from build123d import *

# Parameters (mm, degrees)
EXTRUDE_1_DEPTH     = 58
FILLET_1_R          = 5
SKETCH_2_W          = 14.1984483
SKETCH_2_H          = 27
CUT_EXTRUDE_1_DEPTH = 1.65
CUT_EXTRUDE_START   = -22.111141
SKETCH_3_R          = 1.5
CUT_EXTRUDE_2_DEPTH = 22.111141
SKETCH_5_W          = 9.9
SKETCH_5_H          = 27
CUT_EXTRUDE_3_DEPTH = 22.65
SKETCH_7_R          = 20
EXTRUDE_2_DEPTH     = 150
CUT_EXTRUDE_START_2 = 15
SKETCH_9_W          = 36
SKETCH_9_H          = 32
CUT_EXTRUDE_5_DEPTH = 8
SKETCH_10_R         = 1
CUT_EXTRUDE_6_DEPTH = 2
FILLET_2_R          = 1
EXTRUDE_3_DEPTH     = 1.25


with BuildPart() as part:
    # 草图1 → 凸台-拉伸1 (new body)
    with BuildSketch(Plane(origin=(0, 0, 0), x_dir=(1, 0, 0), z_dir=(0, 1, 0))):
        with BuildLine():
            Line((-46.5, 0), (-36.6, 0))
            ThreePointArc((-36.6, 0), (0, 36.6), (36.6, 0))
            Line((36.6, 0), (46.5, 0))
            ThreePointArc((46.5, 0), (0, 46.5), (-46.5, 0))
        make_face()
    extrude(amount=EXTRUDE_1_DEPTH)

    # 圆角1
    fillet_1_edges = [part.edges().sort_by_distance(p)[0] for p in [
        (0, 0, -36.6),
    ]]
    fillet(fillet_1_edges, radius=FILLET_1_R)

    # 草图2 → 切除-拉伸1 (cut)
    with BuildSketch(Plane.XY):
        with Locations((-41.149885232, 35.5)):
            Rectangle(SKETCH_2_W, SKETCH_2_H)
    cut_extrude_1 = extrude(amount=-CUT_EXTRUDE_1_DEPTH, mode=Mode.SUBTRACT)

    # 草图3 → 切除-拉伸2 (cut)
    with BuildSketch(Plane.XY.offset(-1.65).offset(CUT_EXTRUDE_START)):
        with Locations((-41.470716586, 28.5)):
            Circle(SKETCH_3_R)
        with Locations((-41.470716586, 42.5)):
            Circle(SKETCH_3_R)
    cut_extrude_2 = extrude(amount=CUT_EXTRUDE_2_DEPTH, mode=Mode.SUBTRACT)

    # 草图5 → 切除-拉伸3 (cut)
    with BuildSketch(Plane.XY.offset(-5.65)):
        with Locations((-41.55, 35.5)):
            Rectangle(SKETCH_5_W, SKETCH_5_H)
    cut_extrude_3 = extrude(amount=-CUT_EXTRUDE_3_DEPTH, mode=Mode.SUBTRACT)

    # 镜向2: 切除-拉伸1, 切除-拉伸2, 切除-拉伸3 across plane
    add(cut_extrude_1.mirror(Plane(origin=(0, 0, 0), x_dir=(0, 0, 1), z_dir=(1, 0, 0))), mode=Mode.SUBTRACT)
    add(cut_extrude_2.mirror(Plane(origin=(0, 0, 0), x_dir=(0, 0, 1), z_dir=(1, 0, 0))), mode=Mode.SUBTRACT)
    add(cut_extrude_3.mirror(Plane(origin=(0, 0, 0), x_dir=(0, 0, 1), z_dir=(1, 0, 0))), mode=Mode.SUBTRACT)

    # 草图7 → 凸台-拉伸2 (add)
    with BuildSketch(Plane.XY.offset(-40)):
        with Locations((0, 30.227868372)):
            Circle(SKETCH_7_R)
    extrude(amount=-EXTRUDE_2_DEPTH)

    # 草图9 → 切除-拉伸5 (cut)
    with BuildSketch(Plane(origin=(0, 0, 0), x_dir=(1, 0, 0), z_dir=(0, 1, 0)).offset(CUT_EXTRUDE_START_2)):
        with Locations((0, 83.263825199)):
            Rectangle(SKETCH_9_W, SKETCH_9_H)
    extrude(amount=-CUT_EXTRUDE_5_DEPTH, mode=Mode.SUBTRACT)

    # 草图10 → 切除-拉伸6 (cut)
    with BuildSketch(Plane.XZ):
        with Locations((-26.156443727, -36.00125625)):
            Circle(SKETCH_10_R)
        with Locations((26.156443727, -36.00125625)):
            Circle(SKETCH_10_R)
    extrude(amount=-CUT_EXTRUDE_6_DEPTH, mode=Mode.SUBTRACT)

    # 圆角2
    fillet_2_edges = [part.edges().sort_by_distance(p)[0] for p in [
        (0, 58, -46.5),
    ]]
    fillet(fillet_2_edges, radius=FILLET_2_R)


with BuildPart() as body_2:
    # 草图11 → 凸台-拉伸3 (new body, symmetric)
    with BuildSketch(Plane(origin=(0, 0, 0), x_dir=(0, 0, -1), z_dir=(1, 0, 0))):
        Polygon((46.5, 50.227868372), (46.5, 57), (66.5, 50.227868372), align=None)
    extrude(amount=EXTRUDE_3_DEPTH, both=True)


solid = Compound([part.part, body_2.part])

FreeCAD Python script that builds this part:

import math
import FreeCAD as App
import Part
import Sketcher
Q = App.Units.Quantity


def edges_at(feature, points):
    """Names of the edges that pass closest to the given points."""
    edges = feature.Shape.Edges
    near = lambda p: min(range(len(edges)), key=lambda i: edges[i].distToShape(Part.Vertex(*p))[0])
    return sorted({f"Edge{near(p) + 1}" for p in points})

doc = App.newDocument("Part")
params = doc.addObject("Spreadsheet::Sheet", "Params")
for row, (alias, value) in enumerate([
    ("sketch1_radius", "36.6 mm"),
    ("sketch1_radius2", "46.5 mm"),
    ("pad1_length", "58 mm"),
    ("fillet_radius", "5 mm"),
    ("sketch2_height", "27 mm"),
    ("pocket1_length", "1.65 mm"),
    ("sketch3_diameter", "3 mm"),
    ("pocket2_length", "22.111141 mm"),
    ("sketch4_height", "27 mm"),
    ("sketch4_width", "9.9 mm"),
    ("pocket3_length", "22.65 mm"),
    ("sketch5_diameter", "40 mm"),
    ("pad2_length", "150 mm"),
    ("sketch6_width", "36 mm"),
    ("sketch6_height", "32 mm"),
    ("pocket4_length", "8 mm"),
    ("sketch7_diameter", "2 mm"),
    ("pocket5_length", "2 mm"),
    ("fillet2_radius", "1 mm"),
    ("sketch8_height", "20 mm"),
    ("pad3_length", "2.5 mm"),
], start=1):
    params.set(f"A{row}", alias)
    params.set(f"B{row}", "=" + value)
    params.setAlias(f"B{row}", alias)

body = doc.addObject("PartDesign::Body", "Body")

sketch1 = body.newObject("Sketcher::SketchObject", "Sketch")
sketch1.AttachmentSupport = (doc.getObject("XZ_Plane"), [""])
sketch1.MapMode = "FlatFace"
sketch1.addGeometry([
    Part.LineSegment(App.Vector(-46, 0, 0), App.Vector(-37, 0, 0)),
    Part.ArcOfCircle(Part.Circle(App.Vector(0, 0, 0), App.Vector(0, 0, 1), 37), math.radians(180), math.radians(360)),
    Part.LineSegment(App.Vector(37, 0, 0), App.Vector(46, 0, 0)),
    Part.ArcOfCircle(Part.Circle(App.Vector(0, 0, 0), App.Vector(0, 0, 1), 46), math.radians(180), math.radians(360)),
], False)
sketch1.addConstraint([
    Sketcher.Constraint("Coincident", 0, 2, 1, 1),
    Sketcher.Constraint("Coincident", 1, 2, 2, 1),
    Sketcher.Constraint("Coincident", 2, 2, 3, 2),
    Sketcher.Constraint("Coincident", 3, 1, 0, 1),
    Sketcher.Constraint("Horizontal", 0),
    Sketcher.Constraint("Horizontal", 2),
    Sketcher.Constraint("Coincident", 1, 3, -1, 1),
    Sketcher.Constraint("Coincident", 3, 3, -1, 1),
    Sketcher.Constraint("PointOnObject", 0, 2, -1),
    Sketcher.Constraint("PointOnObject", 1, 2, -1),
    Sketcher.Constraint("Radius", 1, Q("36.6 mm")),
    Sketcher.Constraint("Radius", 3, Q("46.5 mm")),
])
sketch1.setExpression("Constraints[10]", "Params.sketch1_radius")
sketch1.setExpression("Constraints[11]", "Params.sketch1_radius2")
pad1 = body.newObject("PartDesign::Pad", "Pad")
pad1.Profile = sketch1
pad1.setExpression("Length", "Params.pad1_length")
pad1.Reversed = True
doc.recompute()

fillet = body.newObject("PartDesign::Fillet", "Fillet")
fillet.Base = (pad1, edges_at(pad1, [(0, 0, -36.6)]))
fillet.setExpression("Radius", "Params.fillet_radius")

sketch2 = body.newObject("Sketcher::SketchObject", "Sketch001")
sketch2.AttachmentSupport = (doc.getObject("XY_Plane"), [""])
sketch2.MapMode = "FlatFace"
sketch2.addGeometry([
    Part.LineSegment(App.Vector(-48, 49, 0), App.Vector(-48, 22, 0)),
    Part.LineSegment(App.Vector(-48, 22, 0), App.Vector(-34, 22, 0)),
    Part.LineSegment(App.Vector(-34, 22, 0), App.Vector(-34, 49, 0)),
    Part.LineSegment(App.Vector(-34, 49, 0), App.Vector(-48, 49, 0)),
], False)
sketch2.addConstraint([
    Sketcher.Constraint("Coincident", 0, 2, 1, 1),
    Sketcher.Constraint("Coincident", 1, 2, 2, 1),
    Sketcher.Constraint("Coincident", 2, 2, 3, 1),
    Sketcher.Constraint("Coincident", 3, 2, 0, 1),
    Sketcher.Constraint("Vertical", 0),
    Sketcher.Constraint("Horizontal", 1),
    Sketcher.Constraint("Vertical", 2),
    Sketcher.Constraint("Horizontal", 3),
    Sketcher.Constraint("DistanceY", 0, 2, 0, 1, Q("27 mm")),
    Sketcher.Constraint("DistanceY", -1, 1, 0, 2, Q("22 mm")),
    Sketcher.Constraint("DistanceX", 1, 1, 1, 2, Q("14.198448 mm")),
    Sketcher.Constraint("DistanceX", 0, 2, -1, 1, Q("48.249109 mm")),
])
sketch2.setExpression("Constraints[8]", "Params.sketch2_height")
pocket1 = body.newObject("PartDesign::Pocket", "Pocket")
pocket1.Profile = sketch2
pocket1.setExpression("Length", "Params.pocket1_length")

sketch3 = body.newObject("Sketcher::SketchObject", "Sketch002")
sketch3.AttachmentSupport = (doc.getObject("XY_Plane"), [""])
sketch3.MapMode = "FlatFace"
sketch3.AttachmentOffset = App.Placement(App.Vector(0, 0, -23.761141), App.Rotation())
sketch3.addGeometry([
    Part.Circle(App.Vector(-41.5, 28.5, 0), App.Vector(0, 0, 1), 1.5),
    Part.Circle(App.Vector(-41.5, 42.5, 0), App.Vector(0, 0, 1), 1.5),
], False)
sketch3.addConstraint([
    Sketcher.Constraint("Equal", 0, 1),
    Sketcher.Constraint("Vertical", 0, 3, 1, 3),
    Sketcher.Constraint("Diameter", 0, Q("3 mm")),
    Sketcher.Constraint("DistanceY", 0, 3, 1, 3, Q("14 mm")),
    Sketcher.Constraint("DistanceY", -1, 1, 0, 3, Q("28.5 mm")),
    Sketcher.Constraint("DistanceX", 0, 3, -1, 1, Q("41.470717 mm")),
])
sketch3.setExpression("Constraints[2]", "Params.sketch3_diameter")
pocket2 = body.newObject("PartDesign::Pocket", "Pocket001")
pocket2.Profile = sketch3
pocket2.setExpression("Length", "Params.pocket2_length")
pocket2.Reversed = True

sketch4 = body.newObject("Sketcher::SketchObject", "Sketch003")
sketch4.AttachmentSupport = (doc.getObject("XY_Plane"), [""])
sketch4.MapMode = "FlatFace"
sketch4.AttachmentOffset = App.Placement(App.Vector(0, 0, -5.65), App.Rotation())
sketch4.addGeometry([
    Part.LineSegment(App.Vector(-46, 49, 0), App.Vector(-46, 22, 0)),
    Part.LineSegment(App.Vector(-46, 22, 0), App.Vector(-37, 22, 0)),
    Part.LineSegment(App.Vector(-37, 22, 0), App.Vector(-37, 49, 0)),
    Part.LineSegment(App.Vector(-37, 49, 0), App.Vector(-46, 49, 0)),
], False)
sketch4.addConstraint([
    Sketcher.Constraint("Coincident", 0, 2, 1, 1),
    Sketcher.Constraint("Coincident", 1, 2, 2, 1),
    Sketcher.Constraint("Coincident", 2, 2, 3, 1),
    Sketcher.Constraint("Coincident", 3, 2, 0, 1),
    Sketcher.Constraint("Vertical", 0),
    Sketcher.Constraint("Horizontal", 1),
    Sketcher.Constraint("Vertical", 2),
    Sketcher.Constraint("Horizontal", 3),
    Sketcher.Constraint("DistanceY", 0, 2, 0, 1, Q("27 mm")),
    Sketcher.Constraint("DistanceX", 1, 1, 1, 2, Q("9.9 mm")),
    Sketcher.Constraint("DistanceY", -1, 1, 0, 2, Q("22 mm")),
    Sketcher.Constraint("DistanceX", 0, 2, -1, 1, Q("46.5 mm")),
])
sketch4.setExpression("Constraints[8]", "Params.sketch4_height")
sketch4.setExpression("Constraints[9]", "Params.sketch4_width")
pocket3 = body.newObject("PartDesign::Pocket", "Pocket002")
pocket3.Profile = sketch4
pocket3.setExpression("Length", "Params.pocket3_length")
doc.recompute()

mirrored = body.newObject("PartDesign::Mirrored", "Mirrored")
mirrored.Originals = [pocket1, pocket2, pocket3]
mirrored.MirrorPlane = (doc.getObject("YZ_Plane"), [""])
body.Tip = mirrored

sketch5 = body.newObject("Sketcher::SketchObject", "Sketch004")
sketch5.AttachmentSupport = (doc.getObject("XY_Plane"), [""])
sketch5.MapMode = "FlatFace"
sketch5.AttachmentOffset = App.Placement(App.Vector(0, 0, -40), App.Rotation())
sketch5.addGeometry(Part.Circle(App.Vector(0, 30, 0), App.Vector(0, 0, 1), 20), False)
sketch5.addConstraint([
    Sketcher.Constraint("PointOnObject", 0, 3, -2),
    Sketcher.Constraint("Diameter", 0, Q("40 mm")),
    Sketcher.Constraint("DistanceY", -1, 1, 0, 3, Q("30.227868 mm")),
])
sketch5.setExpression("Constraints[1]", "Params.sketch5_diameter")
pad2 = body.newObject("PartDesign::Pad", "Pad001")
pad2.Profile = sketch5
pad2.setExpression("Length", "Params.pad2_length")
pad2.Reversed = True

sketch6 = body.newObject("Sketcher::SketchObject", "Sketch005")
sketch6.AttachmentSupport = (doc.getObject("XZ_Plane"), [""])
sketch6.MapMode = "FlatFace"
sketch6.AttachmentOffset = App.Placement(App.Vector(0, 0, -15), App.Rotation())
sketch6.addGeometry([
    Part.LineSegment(App.Vector(-18, -99, 0), App.Vector(-18, -67, 0)),
    Part.LineSegment(App.Vector(-18, -67, 0), App.Vector(18, -67, 0)),
    Part.LineSegment(App.Vector(18, -67, 0), App.Vector(18, -99, 0)),
    Part.LineSegment(App.Vector(18, -99, 0), App.Vector(-18, -99, 0)),
], False)
sketch6.addConstraint([
    Sketcher.Constraint("Coincident", 0, 2, 1, 1),
    Sketcher.Constraint("Coincident", 1, 2, 2, 1),
    Sketcher.Constraint("Coincident", 2, 2, 3, 1),
    Sketcher.Constraint("Coincident", 3, 2, 0, 1),
    Sketcher.Constraint("Vertical", 0),
    Sketcher.Constraint("Horizontal", 1),
    Sketcher.Constraint("Vertical", 2),
    Sketcher.Constraint("Horizontal", 3),
    Sketcher.Constraint("DistanceX", 1, 1, 1, 2, Q("36 mm")),
    Sketcher.Constraint("DistanceY", 0, 1, 0, 2, Q("32 mm")),
    Sketcher.Constraint("DistanceX", 0, 2, -1, 1, Q("18 mm")),
    Sketcher.Constraint("DistanceY", 0, 2, -1, 1, Q("67.263825 mm")),
])
sketch6.setExpression("Constraints[8]", "Params.sketch6_width")
sketch6.setExpression("Constraints[9]", "Params.sketch6_height")
pocket4 = body.newObject("PartDesign::Pocket", "Pocket003")
pocket4.Profile = sketch6
pocket4.setExpression("Length", "Params.pocket4_length")
pocket4.Reversed = True

sketch7 = body.newObject("Sketcher::SketchObject", "Sketch006")
sketch7.AttachmentSupport = (doc.getObject("XZ_Plane"), [""])
sketch7.MapMode = "FlatFace"
sketch7.addGeometry([
    Part.Circle(App.Vector(-26.2, -36, 0), App.Vector(0, 0, 1), 1),
    Part.Circle(App.Vector(26.2, -36, 0), App.Vector(0, 0, 1), 1),
], False)
sketch7.addConstraint([
    Sketcher.Constraint("Equal", 0, 1),
    Sketcher.Constraint("Symmetric", 0, 3, 1, 3, -2),
    Sketcher.Constraint("Diameter", 0, Q("2 mm")),
    Sketcher.Constraint("DistanceX", 0, 3, -1, 1, Q("26.156444 mm")),
    Sketcher.Constraint("DistanceY", 0, 3, -1, 1, Q("36.001256 mm")),
])
sketch7.setExpression("Constraints[2]", "Params.sketch7_diameter")
pocket5 = body.newObject("PartDesign::Pocket", "Pocket004")
pocket5.Profile = sketch7
pocket5.setExpression("Length", "Params.pocket5_length")
doc.recompute()

fillet2 = body.newObject("PartDesign::Fillet", "Fillet001")
fillet2.Base = (pocket5, edges_at(pocket5, [(0, 58, -46.5)]))
fillet2.setExpression("Radius", "Params.fillet2_radius")
body2 = doc.addObject("PartDesign::Body", "Body001")

sketch8 = body2.newObject("Sketcher::SketchObject", "Sketch007")
sketch8.AttachmentSupport = (doc.getObject("YZ_Plane001"), [""])
sketch8.MapMode = "FlatFace"
sketch8.addGeometry([
    Part.LineSegment(App.Vector(57, -46, 0), App.Vector(50, -46, 0)),
    Part.LineSegment(App.Vector(50, -46, 0), App.Vector(50, -66, 0)),
    Part.LineSegment(App.Vector(50, -66, 0), App.Vector(57, -46, 0)),
], False)
sketch8.addConstraint([
    Sketcher.Constraint("Coincident", 0, 2, 1, 1),
    Sketcher.Constraint("Coincident", 1, 2, 2, 1),
    Sketcher.Constraint("Coincident", 2, 2, 0, 1),
    Sketcher.Constraint("Horizontal", 0),
    Sketcher.Constraint("Vertical", 1),
    Sketcher.Constraint("DistanceY", 1, 2, 1, 1, Q("20 mm")),
    Sketcher.Constraint("DistanceX", -1, 1, 2, 2, Q("57 mm")),
    Sketcher.Constraint("DistanceY", 0, 2, -1, 1, Q("46.5 mm")),
    Sketcher.Constraint("DistanceX", 0, 2, 0, 1, Q("6.772132 mm")),
])
sketch8.setExpression("Constraints[5]", "Params.sketch8_height")
pad3 = body2.newObject("PartDesign::Pad", "Pad002")
pad3.Profile = sketch8
pad3.setExpression("Length", "Params.pad3_length")
pad3.Midplane = True

doc.recompute()
